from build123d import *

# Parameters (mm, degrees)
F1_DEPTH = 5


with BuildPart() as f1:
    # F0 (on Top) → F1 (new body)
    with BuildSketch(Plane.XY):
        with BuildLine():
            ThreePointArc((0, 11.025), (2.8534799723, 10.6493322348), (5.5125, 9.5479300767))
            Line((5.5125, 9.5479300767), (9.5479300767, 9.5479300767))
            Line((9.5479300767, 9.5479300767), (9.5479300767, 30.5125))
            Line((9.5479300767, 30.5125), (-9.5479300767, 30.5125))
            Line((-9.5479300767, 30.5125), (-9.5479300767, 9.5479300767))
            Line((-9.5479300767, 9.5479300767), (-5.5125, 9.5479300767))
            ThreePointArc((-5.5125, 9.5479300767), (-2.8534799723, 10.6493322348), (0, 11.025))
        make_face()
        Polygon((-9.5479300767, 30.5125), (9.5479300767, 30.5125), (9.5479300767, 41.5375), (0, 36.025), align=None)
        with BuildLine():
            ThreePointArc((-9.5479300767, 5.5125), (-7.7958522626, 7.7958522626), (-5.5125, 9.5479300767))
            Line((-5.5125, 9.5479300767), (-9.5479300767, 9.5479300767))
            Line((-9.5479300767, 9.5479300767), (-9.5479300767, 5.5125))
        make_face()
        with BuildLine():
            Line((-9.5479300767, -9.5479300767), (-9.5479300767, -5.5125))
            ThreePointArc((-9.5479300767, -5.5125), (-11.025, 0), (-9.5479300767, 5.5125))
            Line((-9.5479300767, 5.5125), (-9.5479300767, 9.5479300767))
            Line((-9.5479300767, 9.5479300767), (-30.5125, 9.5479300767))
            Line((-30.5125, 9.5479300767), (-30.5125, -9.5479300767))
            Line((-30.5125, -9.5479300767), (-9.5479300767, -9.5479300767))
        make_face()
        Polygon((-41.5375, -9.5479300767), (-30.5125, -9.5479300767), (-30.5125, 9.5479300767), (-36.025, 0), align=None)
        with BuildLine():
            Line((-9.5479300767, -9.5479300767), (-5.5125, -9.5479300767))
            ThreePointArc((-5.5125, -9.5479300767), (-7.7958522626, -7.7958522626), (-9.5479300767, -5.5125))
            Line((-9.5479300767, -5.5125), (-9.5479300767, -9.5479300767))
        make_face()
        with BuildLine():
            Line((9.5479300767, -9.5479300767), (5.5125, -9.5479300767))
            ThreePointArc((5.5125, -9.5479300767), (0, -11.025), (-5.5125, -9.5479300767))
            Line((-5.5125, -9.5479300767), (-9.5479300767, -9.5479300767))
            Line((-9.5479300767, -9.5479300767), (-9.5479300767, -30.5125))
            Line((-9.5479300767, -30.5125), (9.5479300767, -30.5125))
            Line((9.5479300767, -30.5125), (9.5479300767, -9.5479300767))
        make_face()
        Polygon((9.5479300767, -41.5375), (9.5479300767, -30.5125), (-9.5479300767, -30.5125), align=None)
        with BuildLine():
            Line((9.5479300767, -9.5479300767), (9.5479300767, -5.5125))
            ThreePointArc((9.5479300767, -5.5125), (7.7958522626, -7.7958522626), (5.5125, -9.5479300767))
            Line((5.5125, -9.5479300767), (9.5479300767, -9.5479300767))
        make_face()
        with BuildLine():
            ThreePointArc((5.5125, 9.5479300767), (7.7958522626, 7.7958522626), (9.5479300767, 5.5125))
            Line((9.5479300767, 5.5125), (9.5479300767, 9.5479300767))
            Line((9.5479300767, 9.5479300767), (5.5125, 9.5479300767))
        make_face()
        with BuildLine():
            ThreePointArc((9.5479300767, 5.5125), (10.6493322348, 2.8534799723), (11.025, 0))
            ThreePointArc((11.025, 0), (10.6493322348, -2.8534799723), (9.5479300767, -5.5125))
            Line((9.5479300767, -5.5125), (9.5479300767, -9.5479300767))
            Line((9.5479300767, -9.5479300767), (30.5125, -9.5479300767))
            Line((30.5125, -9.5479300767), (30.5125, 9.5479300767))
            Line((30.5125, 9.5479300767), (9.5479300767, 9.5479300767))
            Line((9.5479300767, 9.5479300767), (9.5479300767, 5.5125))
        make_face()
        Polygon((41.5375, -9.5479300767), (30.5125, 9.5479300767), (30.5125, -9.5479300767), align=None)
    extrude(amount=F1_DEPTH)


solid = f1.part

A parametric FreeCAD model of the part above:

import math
import FreeCAD as App
import Part
import Sketcher
Q = App.Units.Quantity

doc = App.newDocument("Part")
body = doc.addObject("PartDesign::Body", "Body")

# Sketch on XY plane
sketch1 = body.newObject("Sketcher::SketchObject", "Sketch")
sketch1.AttachmentSupport = (doc.getObject("XY_Plane"), [""])
sketch1.MapMode = "FlatFace"
sketch1.addGeometry(Part.LineSegment(App.Vector(10, 10, 0), App.Vector(10, 42, 0)), False)
sketch1.addGeometry(Part.LineSegment(App.Vector(10, 42, 0), App.Vector(-10, 31, 0)), False)
sketch1.addGeometry(Part.LineSegment(App.Vector(-10, 31, 0), App.Vector(-10, 10, 0)), False)
sketch1.addGeometry(Part.LineSegment(App.Vector(-10, 10, 0), App.Vector(-31, 10, 0)), False)
sketch1.addGeometry(Part.LineSegment(App.Vector(-31, 10, 0), App.Vector(-42, -10, 0)), False)
sketch1.addGeometry(Part.LineSegment(App.Vector(-42, -10, 0), App.Vector(-10, -10, 0)), False)
sketch1.addGeometry(Part.LineSegment(App.Vector(-10, -10, 0), App.Vector(-10, -31, 0)), False)
sketch1.addGeometry(Part.LineSegment(App.Vector(-10, -31, 0), App.Vector(10, -42, 0)), False)
sketch1.addGeometry(Part.LineSegment(App.Vector(10, -42, 0), App.Vector(10, -10, 0)), False)
sketch1.addGeometry(Part.LineSegment(App.Vector(10, -10, 0), App.Vector(42, -10, 0)), False)
sketch1.addGeometry(Part.LineSegment(App.Vector(42, -10, 0), App.Vector(31, 10, 0)), False)
sketch1.addGeometry(Part.LineSegment(App.Vector(31, 10, 0), App.Vector(10, 10, 0)), False)
sketch1.addGeometry(Part.ArcOfCircle(Part.Circle(App.Vector(0, 0, 0), App.Vector(0, 0, 1), 11), math.radians(60), math.radians(90)), False)
sketch1.addGeometry(Part.ArcOfCircle(Part.Circle(App.Vector(0, 0, 0), App.Vector(0, 0, 1), 11), math.radians(30), math.radians(60)), False)
sketch1.addGeometry(Part.ArcOfCircle(Part.Circle(App.Vector(0, 0, 0), App.Vector(0, 0, 1), 11), math.radians(0), math.radians(30)), False)
sketch1.addGeometry(Part.ArcOfCircle(Part.Circle(App.Vector(0, 0, 0), App.Vector(0, 0, 1), 11), math.radians(-30), math.radians(0)), False)
sketch1.addGeometry(Part.ArcOfCircle(Part.Circle(App.Vector(0, 0, 0), App.Vector(0, 0, 1), 11), math.radians(-60), math.radians(-30)), False)
sketch1.addGeometry(Part.ArcOfCircle(Part.Circle(App.Vector(0, 0, 0), App.Vector(0, 0, 1), 11), math.radians(-120), math.radians(-60)), False)
sketch1.addGeometry(Part.ArcOfCircle(Part.Circle(App.Vector(0, 0, 0), App.Vector(0, 0, 1), 11), math.radians(-150), math.radians(-120)), False)
sketch1.addGeometry(Part.ArcOfCircle(Part.Circle(App.Vector(0, 0, 0), App.Vector(0, 0, 1), 11), math.radians(150), math.radians(210)), False)
sketch1.addGeometry(Part.ArcOfCircle(Part.Circle(App.Vector(0, 0, 0), App.Vector(0, 0, 1), 11), math.radians(120), math.radians(150)), False)
sketch1.addGeometry(Part.ArcOfCircle(Part.Circle(App.Vector(0, 0, 0), App.Vector(0, 0, 1), 11), math.radians(90), math.radians(120)), False)
sketch1.addConstraint(Sketcher.Constraint("Coincident", 0, 2, 1, 1))
sketch1.addConstraint(Sketcher.Constraint("Coincident", 1, 2, 2, 1))
sketch1.addConstraint(Sketcher.Constraint("Coincident", 2, 2, 3, 1))
sketch1.addConstraint(Sketcher.Constraint("Coincident", 3, 2, 4, 1))
sketch1.addConstraint(Sketcher.Constraint("Coincident", 4, 2, 5, 1))
sketch1.addConstraint(Sketcher.Constraint("Coincident", 5, 2, 6, 1))
sketch1.addConstraint(Sketcher.Constraint("Coincident", 6, 2, 7, 1))
sketch1.addConstraint(Sketcher.Constraint("Coincident", 7, 2, 8, 1))
sketch1.addConstraint(Sketcher.Constraint("Coincident", 8, 2, 9, 1))
sketch1.addConstraint(Sketcher.Constraint("Coincident", 9, 2, 10, 1))
sketch1.addConstraint(Sketcher.Constraint("Coincident", 10, 2, 11, 1))
sketch1.addConstraint(Sketcher.Constraint("Coincident", 11, 2, 0, 1))
sketch1.addConstraint(Sketcher.Constraint("Tangent", 12, 1, 13, 2))
sketch1.addConstraint(Sketcher.Constraint("Tangent", 13, 1, 14, 2))
sketch1.addConstraint(Sketcher.Constraint("Tangent", 14, 1, 15, 2))
sketch1.addConstraint(Sketcher.Constraint("Tangent", 15, 1, 16, 2))
sketch1.addConstraint(Sketcher.Constraint("Tangent", 16, 1, 17, 2))
sketch1.addConstraint(Sketcher.Constraint("Tangent", 17, 1, 18, 2))
sketch1.addConstraint(Sketcher.Constraint("Tangent", 18, 1, 19, 2))
sketch1.addConstraint(Sketcher.Constraint("Tangent", 19, 1, 20, 2))
sketch1.addConstraint(Sketcher.Constraint("Tangent", 20, 1, 21, 2))
sketch1.addConstraint(Sketcher.Constraint("Tangent", 21, 1, 12, 2))
sketch1.addConstraint(Sketcher.Constraint("Vertical", 0))
sketch1.addConstraint(Sketcher.Constraint("Vertical", 2))
sketch1.addConstraint(Sketcher.Constraint("Horizontal", 3))
sketch1.addConstraint(Sketcher.Constraint("Horizontal", 5))
sketch1.addConstraint(Sketcher.Constraint("Vertical", 6))
sketch1.addConstraint(Sketcher.Constraint("Vertical", 8))
sketch1.addConstraint(Sketcher.Constraint("Horizontal", 9))
sketch1.addConstraint(Sketcher.Constraint("Horizontal", 11))
sketch1.addConstraint(Sketcher.Constraint("Coincident", 12, 3, -1, 1))
sketch1.addConstraint(Sketcher.Constraint("Coincident", 14, 3, -1, 1))
sketch1.addConstraint(Sketcher.Constraint("Coincident", 16, 3, -1, 1))
sketch1.addConstraint(Sketcher.Constraint("Coincident", 18, 3, -1, 1))
sketch1.addConstraint(Sketcher.Constraint("Equal", 18, 19))
sketch1.addConstraint(Sketcher.Constraint("Symmetric", 2, 2, 8, 2, -1, 1))
sketch1.addConstraint(Sketcher.Constraint("Symmetric", 5, 2, 11, 2, -1, 1))
sketch1.addConstraint(Sketcher.Constraint("Symmetric", 5, 2, 8, 2, -2))
sketch1.addConstraint(Sketcher.Constraint("PointOnObject", 14, 1, -1))
sketch1.addConstraint(Sketcher.Constraint("PointOnObject", 21, 1, -2))
sketch1.addConstraint(Sketcher.Constraint("Perpendicular", 4, 7))
sketch1.addConstraint(Sketcher.Constraint("Perpendicular", 1, 10))
sketch1.addConstraint(Sketcher.Constraint("Horizontal", 11, 2, 12, 1))
sketch1.addConstraint(Sketcher.Constraint("Horizontal", 9, 2, 16, 1))
sketch1.addConstraint(Sketcher.Constraint("Horizontal", 16, 1, 17, 1))
sketch1.addConstraint(Sketcher.Constraint("Horizontal", 15, 1, 18, 1))
sketch1.addConstraint(Sketcher.Constraint("Horizontal", 13, 1, 19, 1))
sketch1.addConstraint(Sketcher.Constraint("Horizontal", 12, 1, 20, 1))
sketch1.addConstraint(Sketcher.Constraint("Vertical", 11, 2, 13, 1))
sketch1.addConstraint(Sketcher.Constraint("Vertical", 13, 1, 15, 1))
sketch1.addConstraint(Sketcher.Constraint("Equal", 5, 9))
sketch1.addConstraint(Sketcher.Constraint("Equal", 3, 11))
sketch1.addConstraint(Sketcher.Constraint("Equal", 9, 0))
sketch1.addConstraint(Sketcher.Constraint("Equal", 11, 2))
sketch1.addConstraint(Sketcher.Constraint("Equal", 2, 6))
sketch1.addConstraint(Sketcher.Constraint("Angle", 1, Q("-150 deg")))
sketch1.addConstraint(Sketcher.Constraint("Radius", 12, 11.025))
sketch1.addConstraint(Sketcher.Constraint("Distance", 1, 22.05))
sketch1.addConstraint(Sketcher.Constraint("DistanceX", 3, 2, 3, 1, 20.96457))
pad1 = body.newObject("PartDesign::Pad", "Pad")
pad1.Profile = sketch1
pad1.Length = 5

doc.recompute()
